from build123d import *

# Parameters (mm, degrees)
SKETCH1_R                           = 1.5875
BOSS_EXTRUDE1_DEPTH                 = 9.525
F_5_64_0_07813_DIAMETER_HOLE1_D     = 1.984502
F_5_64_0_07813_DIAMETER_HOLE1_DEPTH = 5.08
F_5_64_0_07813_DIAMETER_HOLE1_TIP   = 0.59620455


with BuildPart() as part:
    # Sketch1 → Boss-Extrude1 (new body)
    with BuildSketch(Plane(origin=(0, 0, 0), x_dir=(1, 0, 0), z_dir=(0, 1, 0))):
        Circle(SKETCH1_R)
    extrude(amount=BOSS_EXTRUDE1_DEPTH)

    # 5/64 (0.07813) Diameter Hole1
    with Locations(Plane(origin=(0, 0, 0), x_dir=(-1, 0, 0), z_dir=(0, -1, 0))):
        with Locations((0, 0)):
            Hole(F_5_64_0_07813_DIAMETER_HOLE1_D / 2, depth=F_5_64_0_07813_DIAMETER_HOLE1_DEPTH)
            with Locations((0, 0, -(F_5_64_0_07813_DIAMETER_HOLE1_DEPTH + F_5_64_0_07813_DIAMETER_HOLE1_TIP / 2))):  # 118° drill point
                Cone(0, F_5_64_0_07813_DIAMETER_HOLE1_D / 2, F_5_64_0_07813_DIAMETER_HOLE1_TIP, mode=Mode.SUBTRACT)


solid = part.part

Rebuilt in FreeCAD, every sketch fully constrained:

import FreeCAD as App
import Part
import Sketcher
Q = App.Units.Quantity

doc = App.newDocument("Part")
params = doc.addObject("Spreadsheet::Sheet", "Params")
for row, (alias, value) in enumerate([
    ("sketch1_diameter", "0.125 in"),
    ("pad1_length", "0.375 in"),
    ("hole_diameter", "1.984502 mm"),
    ("hole_depth", "0.2 in"),
], start=1):
    params.set(f"A{row}", alias)
    params.set(f"B{row}", "=" + value)
    params.setAlias(f"B{row}", alias)

body = doc.addObject("PartDesign::Body", "Body")

sketch1 = doc.addObject("Sketcher::SketchObject", "Sketch")
body.addObject(sketch1)
sketch1.AttachmentSupport = (doc.XZ_Plane, [""])
sketch1.MapMode = "FlatFace"
sketch1.addGeometry(Part.Circle(App.Vector(0, 0, 0), App.Vector(0, 0, 1), 1.6), False)
sketch1.addConstraint([
    Sketcher.Constraint("Coincident", 0, 3, -1, 1),
    Sketcher.Constraint("Diameter", 0, Q("0.125 in")),
])
sketch1.setExpression("Constraints[1]", "Params.sketch1_diameter")
pad1 = doc.addObject("PartDesign::Pad", "Pad")
body.addObject(pad1)
pad1.Profile = sketch1
pad1.setExpression("Length", "Params.pad1_length")
pad1.Reversed = True

sketch2 = doc.addObject("Sketcher::SketchObject", "Sketch001")
body.addObject(sketch2)
sketch2.AttachmentSupport = (doc.XZ_Plane, [""])
sketch2.MapMode = "FlatFace"
sketch2.addGeometry(Part.Circle(App.Vector(0, 0, 0), App.Vector(0, 0, 1), 1), False)
sketch2.addConstraint([
    Sketcher.Constraint("Coincident", 0, 3, -1, 1),
    Sketcher.Constraint("Diameter", 0, 1.984502),
])
doc.recompute()
hole = doc.addObject("PartDesign::Hole", "Hole")
body.addObject(hole)
hole.Profile = sketch2
hole.ThreadType = "None"
hole.setExpression("Diameter", "Params.hole_diameter")
hole.DepthType = "Dimension"
hole.setExpression("Depth", "Params.hole_depth")
hole.DrillPoint = "Angled"
hole.DrillPointAngle = 118

doc.recompute()
